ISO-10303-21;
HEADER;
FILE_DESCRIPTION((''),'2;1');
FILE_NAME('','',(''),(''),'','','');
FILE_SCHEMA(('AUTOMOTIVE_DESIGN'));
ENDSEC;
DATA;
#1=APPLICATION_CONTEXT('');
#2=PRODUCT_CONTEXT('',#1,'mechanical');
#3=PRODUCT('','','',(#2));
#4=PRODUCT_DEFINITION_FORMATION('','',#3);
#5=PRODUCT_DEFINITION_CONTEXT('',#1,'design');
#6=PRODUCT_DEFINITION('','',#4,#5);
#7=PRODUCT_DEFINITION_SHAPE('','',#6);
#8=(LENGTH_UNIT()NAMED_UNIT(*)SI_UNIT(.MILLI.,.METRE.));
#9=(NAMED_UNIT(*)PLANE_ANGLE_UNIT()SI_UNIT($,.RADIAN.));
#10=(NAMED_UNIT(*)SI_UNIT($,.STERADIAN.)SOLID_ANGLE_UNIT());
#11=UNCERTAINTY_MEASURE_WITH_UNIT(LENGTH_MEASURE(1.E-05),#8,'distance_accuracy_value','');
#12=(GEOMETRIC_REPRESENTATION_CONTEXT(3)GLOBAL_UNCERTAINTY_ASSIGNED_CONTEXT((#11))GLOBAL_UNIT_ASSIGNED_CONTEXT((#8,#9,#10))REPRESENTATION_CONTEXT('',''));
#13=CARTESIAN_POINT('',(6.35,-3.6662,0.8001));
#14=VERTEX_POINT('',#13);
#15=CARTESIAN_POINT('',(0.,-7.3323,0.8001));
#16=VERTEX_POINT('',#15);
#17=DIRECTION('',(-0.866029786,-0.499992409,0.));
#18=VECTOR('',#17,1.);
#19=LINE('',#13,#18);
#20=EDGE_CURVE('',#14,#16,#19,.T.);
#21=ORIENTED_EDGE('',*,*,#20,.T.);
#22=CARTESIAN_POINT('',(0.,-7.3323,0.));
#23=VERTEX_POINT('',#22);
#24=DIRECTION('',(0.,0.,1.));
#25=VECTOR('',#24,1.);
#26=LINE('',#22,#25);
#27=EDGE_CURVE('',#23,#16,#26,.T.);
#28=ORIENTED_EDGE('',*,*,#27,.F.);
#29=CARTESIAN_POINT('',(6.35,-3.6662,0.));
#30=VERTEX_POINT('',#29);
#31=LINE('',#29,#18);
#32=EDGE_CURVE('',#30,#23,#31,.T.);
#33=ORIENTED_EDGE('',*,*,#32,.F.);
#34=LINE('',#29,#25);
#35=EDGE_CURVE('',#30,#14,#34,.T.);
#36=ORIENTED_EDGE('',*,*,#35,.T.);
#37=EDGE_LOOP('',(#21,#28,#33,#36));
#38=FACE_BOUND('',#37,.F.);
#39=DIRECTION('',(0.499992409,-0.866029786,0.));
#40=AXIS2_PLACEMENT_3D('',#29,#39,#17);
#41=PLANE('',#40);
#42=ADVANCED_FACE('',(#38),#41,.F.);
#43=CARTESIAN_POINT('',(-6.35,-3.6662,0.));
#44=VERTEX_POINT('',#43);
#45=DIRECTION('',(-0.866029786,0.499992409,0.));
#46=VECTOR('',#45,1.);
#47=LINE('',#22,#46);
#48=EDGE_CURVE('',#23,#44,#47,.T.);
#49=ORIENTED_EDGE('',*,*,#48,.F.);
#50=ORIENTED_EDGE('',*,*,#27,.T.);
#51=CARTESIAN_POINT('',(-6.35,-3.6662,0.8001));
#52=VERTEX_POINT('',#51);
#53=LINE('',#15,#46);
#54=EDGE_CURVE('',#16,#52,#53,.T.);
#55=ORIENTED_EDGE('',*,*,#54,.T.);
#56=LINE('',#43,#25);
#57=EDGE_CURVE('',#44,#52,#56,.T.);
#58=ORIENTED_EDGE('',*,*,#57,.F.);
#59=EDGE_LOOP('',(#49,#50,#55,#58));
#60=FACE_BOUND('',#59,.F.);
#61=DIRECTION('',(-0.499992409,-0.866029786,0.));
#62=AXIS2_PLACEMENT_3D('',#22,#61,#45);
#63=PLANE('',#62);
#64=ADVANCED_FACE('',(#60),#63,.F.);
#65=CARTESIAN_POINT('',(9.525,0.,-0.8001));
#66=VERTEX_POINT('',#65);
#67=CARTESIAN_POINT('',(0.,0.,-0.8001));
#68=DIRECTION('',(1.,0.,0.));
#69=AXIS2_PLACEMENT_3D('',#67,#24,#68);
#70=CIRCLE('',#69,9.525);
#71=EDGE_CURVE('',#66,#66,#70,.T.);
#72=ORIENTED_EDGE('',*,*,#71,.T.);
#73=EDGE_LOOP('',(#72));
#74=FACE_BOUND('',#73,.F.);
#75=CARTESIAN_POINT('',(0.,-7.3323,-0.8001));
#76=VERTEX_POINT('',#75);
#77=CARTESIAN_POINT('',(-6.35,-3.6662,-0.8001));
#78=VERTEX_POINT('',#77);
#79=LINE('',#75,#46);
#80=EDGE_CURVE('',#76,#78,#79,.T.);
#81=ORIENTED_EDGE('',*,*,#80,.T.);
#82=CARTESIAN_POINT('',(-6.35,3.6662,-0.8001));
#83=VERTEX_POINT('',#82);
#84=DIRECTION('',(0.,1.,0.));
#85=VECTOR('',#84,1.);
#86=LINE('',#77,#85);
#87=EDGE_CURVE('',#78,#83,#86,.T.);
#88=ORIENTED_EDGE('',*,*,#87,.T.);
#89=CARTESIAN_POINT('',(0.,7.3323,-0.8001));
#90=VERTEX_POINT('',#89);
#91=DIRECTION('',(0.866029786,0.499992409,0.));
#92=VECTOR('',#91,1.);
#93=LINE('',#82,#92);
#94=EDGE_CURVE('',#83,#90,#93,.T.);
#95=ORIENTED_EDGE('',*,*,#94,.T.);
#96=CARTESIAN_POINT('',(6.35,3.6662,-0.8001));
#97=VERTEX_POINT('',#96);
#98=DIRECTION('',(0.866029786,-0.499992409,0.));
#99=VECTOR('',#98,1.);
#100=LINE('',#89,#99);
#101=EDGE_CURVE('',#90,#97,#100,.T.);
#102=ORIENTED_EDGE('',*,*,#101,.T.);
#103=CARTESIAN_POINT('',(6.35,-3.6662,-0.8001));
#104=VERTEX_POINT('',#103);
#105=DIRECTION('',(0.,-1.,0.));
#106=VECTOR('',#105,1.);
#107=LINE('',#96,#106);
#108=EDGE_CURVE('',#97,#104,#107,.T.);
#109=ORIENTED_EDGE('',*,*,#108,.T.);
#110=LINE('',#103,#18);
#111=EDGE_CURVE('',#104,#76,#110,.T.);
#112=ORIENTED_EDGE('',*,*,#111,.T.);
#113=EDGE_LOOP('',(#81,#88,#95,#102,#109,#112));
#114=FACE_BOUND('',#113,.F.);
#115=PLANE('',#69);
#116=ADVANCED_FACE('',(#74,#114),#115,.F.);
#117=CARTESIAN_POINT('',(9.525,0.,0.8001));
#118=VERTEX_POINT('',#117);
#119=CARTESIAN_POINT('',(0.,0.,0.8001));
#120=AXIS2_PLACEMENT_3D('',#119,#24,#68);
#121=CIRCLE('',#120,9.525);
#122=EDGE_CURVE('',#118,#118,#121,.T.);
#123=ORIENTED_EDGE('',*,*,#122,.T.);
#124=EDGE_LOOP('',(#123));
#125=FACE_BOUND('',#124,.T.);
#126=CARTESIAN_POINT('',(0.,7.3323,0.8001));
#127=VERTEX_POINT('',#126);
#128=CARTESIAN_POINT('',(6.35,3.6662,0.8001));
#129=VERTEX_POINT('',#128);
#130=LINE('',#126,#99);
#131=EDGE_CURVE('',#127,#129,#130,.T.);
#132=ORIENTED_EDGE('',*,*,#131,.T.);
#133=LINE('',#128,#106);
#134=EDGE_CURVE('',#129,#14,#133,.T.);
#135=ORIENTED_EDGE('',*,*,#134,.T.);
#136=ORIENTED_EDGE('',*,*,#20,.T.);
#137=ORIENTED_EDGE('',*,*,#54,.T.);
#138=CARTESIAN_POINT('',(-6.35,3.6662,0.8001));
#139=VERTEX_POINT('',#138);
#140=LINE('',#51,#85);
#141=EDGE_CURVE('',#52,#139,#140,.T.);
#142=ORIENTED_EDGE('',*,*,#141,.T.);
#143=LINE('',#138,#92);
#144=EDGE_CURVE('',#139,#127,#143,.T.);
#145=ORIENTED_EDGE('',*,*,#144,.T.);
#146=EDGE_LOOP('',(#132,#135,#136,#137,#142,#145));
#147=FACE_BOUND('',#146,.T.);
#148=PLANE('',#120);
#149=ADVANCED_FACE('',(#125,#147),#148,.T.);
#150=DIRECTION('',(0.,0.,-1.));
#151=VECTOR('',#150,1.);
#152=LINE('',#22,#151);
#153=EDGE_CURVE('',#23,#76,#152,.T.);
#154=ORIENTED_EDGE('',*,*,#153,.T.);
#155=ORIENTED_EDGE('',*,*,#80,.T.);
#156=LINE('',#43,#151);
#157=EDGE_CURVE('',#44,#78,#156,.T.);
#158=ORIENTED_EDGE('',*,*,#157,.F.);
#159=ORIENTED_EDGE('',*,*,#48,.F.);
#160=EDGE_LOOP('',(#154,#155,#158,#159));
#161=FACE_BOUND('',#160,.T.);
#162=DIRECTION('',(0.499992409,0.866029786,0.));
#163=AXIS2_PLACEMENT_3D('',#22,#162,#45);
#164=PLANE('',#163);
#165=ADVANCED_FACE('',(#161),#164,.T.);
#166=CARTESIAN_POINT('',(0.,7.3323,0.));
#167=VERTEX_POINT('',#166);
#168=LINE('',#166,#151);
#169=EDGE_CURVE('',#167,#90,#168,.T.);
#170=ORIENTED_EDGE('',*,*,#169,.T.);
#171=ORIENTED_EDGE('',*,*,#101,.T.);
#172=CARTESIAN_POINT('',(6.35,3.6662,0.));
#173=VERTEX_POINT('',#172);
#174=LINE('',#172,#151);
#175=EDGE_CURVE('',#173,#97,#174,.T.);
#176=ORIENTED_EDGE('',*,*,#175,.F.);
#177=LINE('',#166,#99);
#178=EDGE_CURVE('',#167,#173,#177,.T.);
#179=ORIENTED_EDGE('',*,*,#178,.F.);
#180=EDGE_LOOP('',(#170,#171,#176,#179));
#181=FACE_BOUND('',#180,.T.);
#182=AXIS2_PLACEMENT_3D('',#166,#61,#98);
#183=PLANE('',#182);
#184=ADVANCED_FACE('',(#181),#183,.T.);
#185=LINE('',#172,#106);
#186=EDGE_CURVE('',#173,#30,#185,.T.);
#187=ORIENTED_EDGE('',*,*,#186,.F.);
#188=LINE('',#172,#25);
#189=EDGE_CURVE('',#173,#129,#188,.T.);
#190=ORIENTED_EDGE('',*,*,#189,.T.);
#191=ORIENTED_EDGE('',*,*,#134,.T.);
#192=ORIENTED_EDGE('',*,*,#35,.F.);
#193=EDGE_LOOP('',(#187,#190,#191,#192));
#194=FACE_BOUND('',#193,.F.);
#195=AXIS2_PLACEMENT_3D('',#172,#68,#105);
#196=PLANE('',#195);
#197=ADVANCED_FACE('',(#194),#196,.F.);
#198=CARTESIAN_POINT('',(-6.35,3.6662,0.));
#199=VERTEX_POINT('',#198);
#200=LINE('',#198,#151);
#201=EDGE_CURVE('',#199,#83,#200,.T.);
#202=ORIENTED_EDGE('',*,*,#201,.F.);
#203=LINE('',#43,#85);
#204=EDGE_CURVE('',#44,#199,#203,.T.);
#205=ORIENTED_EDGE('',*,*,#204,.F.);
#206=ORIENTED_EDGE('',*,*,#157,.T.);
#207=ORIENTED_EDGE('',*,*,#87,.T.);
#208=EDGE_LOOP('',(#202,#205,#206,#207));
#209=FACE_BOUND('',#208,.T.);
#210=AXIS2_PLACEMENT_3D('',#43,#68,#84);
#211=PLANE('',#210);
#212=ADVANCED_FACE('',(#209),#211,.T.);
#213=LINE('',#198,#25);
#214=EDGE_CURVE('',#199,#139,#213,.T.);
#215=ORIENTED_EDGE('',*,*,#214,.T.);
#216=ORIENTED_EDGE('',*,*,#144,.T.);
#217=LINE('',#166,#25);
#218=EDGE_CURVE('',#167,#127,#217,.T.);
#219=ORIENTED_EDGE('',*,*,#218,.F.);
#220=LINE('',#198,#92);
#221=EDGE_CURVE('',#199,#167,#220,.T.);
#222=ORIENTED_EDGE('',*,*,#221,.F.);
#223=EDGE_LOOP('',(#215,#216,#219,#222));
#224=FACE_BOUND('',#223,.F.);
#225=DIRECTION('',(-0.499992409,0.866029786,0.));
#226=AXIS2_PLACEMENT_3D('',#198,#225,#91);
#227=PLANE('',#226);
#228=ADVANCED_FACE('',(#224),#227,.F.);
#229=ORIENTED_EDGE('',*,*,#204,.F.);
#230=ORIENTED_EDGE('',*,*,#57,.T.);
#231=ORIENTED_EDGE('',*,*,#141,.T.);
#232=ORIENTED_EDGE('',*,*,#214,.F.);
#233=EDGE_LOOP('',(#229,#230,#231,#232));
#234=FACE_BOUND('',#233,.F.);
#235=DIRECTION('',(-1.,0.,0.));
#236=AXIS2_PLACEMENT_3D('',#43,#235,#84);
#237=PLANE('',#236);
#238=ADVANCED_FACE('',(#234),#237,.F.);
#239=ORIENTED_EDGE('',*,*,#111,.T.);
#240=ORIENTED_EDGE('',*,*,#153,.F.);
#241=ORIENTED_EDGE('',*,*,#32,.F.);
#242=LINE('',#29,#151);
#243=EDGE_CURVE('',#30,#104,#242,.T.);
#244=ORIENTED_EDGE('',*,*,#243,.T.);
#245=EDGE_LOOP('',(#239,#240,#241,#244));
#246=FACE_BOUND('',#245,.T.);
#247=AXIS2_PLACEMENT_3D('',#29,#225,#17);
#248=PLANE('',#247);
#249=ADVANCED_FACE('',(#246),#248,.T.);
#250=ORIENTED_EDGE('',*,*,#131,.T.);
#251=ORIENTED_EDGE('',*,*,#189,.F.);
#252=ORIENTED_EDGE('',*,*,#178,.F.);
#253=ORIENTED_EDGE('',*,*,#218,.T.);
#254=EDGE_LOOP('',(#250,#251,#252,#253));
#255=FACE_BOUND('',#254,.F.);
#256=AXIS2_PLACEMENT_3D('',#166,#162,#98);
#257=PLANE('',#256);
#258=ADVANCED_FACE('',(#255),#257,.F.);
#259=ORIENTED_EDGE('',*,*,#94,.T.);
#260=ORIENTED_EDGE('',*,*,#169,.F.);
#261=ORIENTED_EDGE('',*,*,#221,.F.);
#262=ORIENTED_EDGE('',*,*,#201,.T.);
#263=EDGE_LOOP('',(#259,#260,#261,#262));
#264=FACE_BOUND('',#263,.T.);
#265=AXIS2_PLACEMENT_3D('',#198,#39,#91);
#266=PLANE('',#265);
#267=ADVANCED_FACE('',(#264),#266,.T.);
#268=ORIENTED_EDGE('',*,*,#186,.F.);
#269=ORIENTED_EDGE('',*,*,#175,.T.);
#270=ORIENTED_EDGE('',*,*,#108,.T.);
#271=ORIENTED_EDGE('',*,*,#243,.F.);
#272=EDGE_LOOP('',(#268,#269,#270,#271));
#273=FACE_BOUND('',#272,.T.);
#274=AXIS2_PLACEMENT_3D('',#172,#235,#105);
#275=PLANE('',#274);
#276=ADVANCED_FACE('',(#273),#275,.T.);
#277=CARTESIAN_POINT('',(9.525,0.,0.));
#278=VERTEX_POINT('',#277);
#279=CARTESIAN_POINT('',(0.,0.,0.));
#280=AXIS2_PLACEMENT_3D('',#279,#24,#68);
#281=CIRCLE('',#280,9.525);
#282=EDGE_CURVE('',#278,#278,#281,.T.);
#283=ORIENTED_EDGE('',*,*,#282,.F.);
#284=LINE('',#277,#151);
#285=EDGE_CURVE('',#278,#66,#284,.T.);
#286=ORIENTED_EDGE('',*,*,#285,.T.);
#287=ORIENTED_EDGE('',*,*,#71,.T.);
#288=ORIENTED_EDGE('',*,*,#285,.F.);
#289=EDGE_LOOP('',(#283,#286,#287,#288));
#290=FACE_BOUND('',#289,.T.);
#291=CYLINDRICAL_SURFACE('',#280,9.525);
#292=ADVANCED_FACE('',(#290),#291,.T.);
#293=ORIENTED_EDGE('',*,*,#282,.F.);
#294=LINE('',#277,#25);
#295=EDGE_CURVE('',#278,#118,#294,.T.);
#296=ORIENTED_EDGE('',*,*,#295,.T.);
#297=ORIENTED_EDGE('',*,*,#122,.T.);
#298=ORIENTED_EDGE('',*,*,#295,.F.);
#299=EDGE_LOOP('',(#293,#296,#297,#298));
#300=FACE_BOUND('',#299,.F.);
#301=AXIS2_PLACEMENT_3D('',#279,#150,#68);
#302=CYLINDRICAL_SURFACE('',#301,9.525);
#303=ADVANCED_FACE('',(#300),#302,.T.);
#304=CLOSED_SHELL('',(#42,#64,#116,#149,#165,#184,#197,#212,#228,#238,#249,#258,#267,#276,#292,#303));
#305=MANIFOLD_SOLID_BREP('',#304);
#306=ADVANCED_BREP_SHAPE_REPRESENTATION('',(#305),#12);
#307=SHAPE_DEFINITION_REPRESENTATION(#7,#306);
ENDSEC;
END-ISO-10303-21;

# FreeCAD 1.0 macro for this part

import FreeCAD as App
import Part
import Sketcher

V = App.Vector
Q = App.Units.Quantity

doc = App.newDocument("Part")
body = doc.addObject("PartDesign::Body", "Body")

# Sketch on XY plane
sketch1 = body.newObject("Sketcher::SketchObject", "Sketch")
sketch1.AttachmentSupport = (doc.getObject("XY_Plane"), [""])
sketch1.MapMode = "FlatFace"
sketch1.addGeometry([
    Part.Circle(V(0, 0, 0), V(0, 0, 1), 10),  # 0
    Part.LineSegment(V(-6, 4, 0), V(0, 7, 0)),  # 1
    Part.LineSegment(V(0, 7, 0), V(6, 4, 0)),  # 2
    Part.LineSegment(V(6, 4, 0), V(6, -4, 0)),  # 3
    Part.LineSegment(V(6, -4, 0), V(0, -7, 0)),  # 4
    Part.LineSegment(V(0, -7, 0), V(-6, -4, 0)),  # 5
    Part.LineSegment(V(-6, -4, 0), V(-6, 4, 0)),  # 6
], False)
sketch1.addConstraint([
    Sketcher.Constraint("Coincident", 1, 2, 2, 1),
    Sketcher.Constraint("Coincident", 2, 2, 3, 1),
    Sketcher.Constraint("Coincident", 3, 2, 4, 1),
    Sketcher.Constraint("Coincident", 4, 2, 5, 1),
    Sketcher.Constraint("Coincident", 5, 2, 6, 1),
    Sketcher.Constraint("Coincident", 6, 2, 1, 1),
    Sketcher.Constraint("Vertical", 3),
    Sketcher.Constraint("Vertical", 6),
    Sketcher.Constraint("Coincident", 0, 3, -1, 1),
    Sketcher.Constraint("Symmetric", 1, 2, 4, 2, -1, 1),
    Sketcher.Constraint("Symmetric", 2, 2, 5, 2, -1, 1),
    Sketcher.Constraint("PointOnObject", 1, 2, -2),
    Sketcher.Constraint("Parallel", 1, 4),
    Sketcher.Constraint("Horizontal", 3, 2, 5, 2),
    Sketcher.Constraint("Diameter", 0, Q("0.75 in")),
    Sketcher.Constraint("DistanceX", 5, 2, 3, 2, Q("0.5 in")),
    Sketcher.Constraint("Angle", 1, Q("29.9995 deg")),
    Sketcher.Constraint("DistanceY", 3, 2, 1, 2, Q("0.433 in")),
])
pad1 = body.newObject("PartDesign::Pad", "Pad")
pad1.Profile = sketch1
pad1.Length = Q("0.063 in")
pad1.Midplane = True

doc.recompute()
